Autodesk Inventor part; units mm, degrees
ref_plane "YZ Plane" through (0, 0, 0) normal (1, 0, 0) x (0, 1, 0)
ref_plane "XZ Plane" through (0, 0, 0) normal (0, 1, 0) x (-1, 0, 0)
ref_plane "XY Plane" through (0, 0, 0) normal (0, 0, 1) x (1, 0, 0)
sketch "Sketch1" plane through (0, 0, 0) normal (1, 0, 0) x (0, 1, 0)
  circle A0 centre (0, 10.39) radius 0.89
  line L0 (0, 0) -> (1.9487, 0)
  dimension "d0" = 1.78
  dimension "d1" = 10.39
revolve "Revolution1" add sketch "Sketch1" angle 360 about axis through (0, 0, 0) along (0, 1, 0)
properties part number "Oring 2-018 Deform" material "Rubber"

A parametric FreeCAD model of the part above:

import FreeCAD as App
import Part
import Sketcher

V = App.Vector
Q = App.Units.Quantity

doc = App.newDocument("Part")
body = doc.addObject("PartDesign::Body", "Body")

# Sketch on YZ plane
sketch1 = body.newObject("Sketcher::SketchObject", "Sketch")
sketch1.AttachmentSupport = (doc.getObject("YZ_Plane"), [""])
sketch1.MapMode = "FlatFace"
sketch1.addGeometry(Part.Circle(V(0, 10.39, 0), V(0, 0, 1), 0.89), False)
sketch1.addConstraint(Sketcher.Constraint("PointOnObject", 0, 3, -2))
sketch1.addConstraint(Sketcher.Constraint("Diameter", 0, Q("1.78 mm")))
sketch1.addConstraint(Sketcher.Constraint("DistanceY", -1, 1, 0, 3, Q("10.39 mm")))
revolution = body.newObject("PartDesign::Revolution", "Revolution")
revolution.Profile = sketch1
revolution.ReferenceAxis = (sketch1, ["H_Axis"])
revolution.Angle = 360

doc.recompute()
